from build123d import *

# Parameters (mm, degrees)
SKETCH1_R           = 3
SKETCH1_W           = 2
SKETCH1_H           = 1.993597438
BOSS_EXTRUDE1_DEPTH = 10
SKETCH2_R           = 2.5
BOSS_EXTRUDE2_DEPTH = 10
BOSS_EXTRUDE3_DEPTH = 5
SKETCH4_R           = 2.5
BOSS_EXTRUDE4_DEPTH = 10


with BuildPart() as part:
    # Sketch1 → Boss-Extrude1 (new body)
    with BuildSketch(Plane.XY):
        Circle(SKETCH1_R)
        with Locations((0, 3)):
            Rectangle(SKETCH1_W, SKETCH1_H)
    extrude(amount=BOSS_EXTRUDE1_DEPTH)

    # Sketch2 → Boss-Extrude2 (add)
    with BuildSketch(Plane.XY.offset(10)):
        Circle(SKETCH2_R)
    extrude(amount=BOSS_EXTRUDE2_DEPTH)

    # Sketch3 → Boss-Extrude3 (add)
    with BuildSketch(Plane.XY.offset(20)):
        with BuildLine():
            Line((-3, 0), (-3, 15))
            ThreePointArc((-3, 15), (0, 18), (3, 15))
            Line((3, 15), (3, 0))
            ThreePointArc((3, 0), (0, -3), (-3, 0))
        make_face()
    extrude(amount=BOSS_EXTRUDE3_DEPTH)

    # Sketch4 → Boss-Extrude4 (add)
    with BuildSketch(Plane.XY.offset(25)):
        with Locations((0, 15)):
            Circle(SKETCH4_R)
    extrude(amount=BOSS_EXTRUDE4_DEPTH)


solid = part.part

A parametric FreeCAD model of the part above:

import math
import FreeCAD as App
import Part
import Sketcher
from FreeCAD import Vector

doc = App.newDocument("Part")
body = doc.addObject("PartDesign::Body", "Body")

sketch1 = doc.addObject("Sketcher::SketchObject", "Sketch")
body.addObject(sketch1)
sketch1.AttachmentSupport = (doc.XY_Plane, [""])
sketch1.MapMode = "FlatFace"
sketch1.addGeometry(Part.ArcOfCircle(Part.Circle(Vector(0, 0, 0), Vector(0, 0, 1), 3), math.radians(109), math.radians(431)), False)
sketch1.addGeometry(Part.LineSegment(Vector(1, 2.8, 0), Vector(1, 4, 0)), False)
sketch1.addGeometry(Part.LineSegment(Vector(1, 4, 0), Vector(-1, 4, 0)), False)
sketch1.addGeometry(Part.LineSegment(Vector(-1, 4, 0), Vector(-1, 2.8, 0)), False)
sketch1.addConstraint(Sketcher.Constraint("Coincident", 0, 2, 1, 1))
sketch1.addConstraint(Sketcher.Constraint("Coincident", 1, 2, 2, 1))
sketch1.addConstraint(Sketcher.Constraint("Coincident", 2, 2, 3, 1))
sketch1.addConstraint(Sketcher.Constraint("Coincident", 3, 2, 0, 1))
sketch1.addConstraint(Sketcher.Constraint("Vertical", 1))
sketch1.addConstraint(Sketcher.Constraint("Horizontal", 2))
sketch1.addConstraint(Sketcher.Constraint("Vertical", 3))
sketch1.addConstraint(Sketcher.Constraint("Coincident", 0, 3, -1, 1))
sketch1.addConstraint(Sketcher.Constraint("Horizontal", 0, 2, 3, 2))
sketch1.addConstraint(Sketcher.Constraint("Radius", 0, 3.0))
sketch1.addConstraint(Sketcher.Constraint("DistanceX", 2, 2, 2, 1, 2.0))
sketch1.addConstraint(Sketcher.Constraint("DistanceY", 1, 1, 1, 2, 1.168372))
pad1 = doc.addObject("PartDesign::Pad", "Pad")
body.addObject(pad1)
pad1.Profile = sketch1
pad1.Length = 10

sketch2 = doc.addObject("Sketcher::SketchObject", "Sketch001")
body.addObject(sketch2)
sketch2.AttachmentSupport = (doc.XY_Plane, [""])
sketch2.MapMode = "FlatFace"
sketch2.AttachmentOffset = App.Placement(Vector(0, 0, 10), App.Rotation())
sketch2.addGeometry(Part.Circle(Vector(0, 0, 0), Vector(0, 0, 1), 2.5), False)
sketch2.addConstraint(Sketcher.Constraint("Coincident", 0, 3, -1, 1))
sketch2.addConstraint(Sketcher.Constraint("Diameter", 0, 5.0))
pad2 = doc.addObject("PartDesign::Pad", "Pad001")
body.addObject(pad2)
pad2.Profile = sketch2
pad2.Length = 10

sketch3 = doc.addObject("Sketcher::SketchObject", "Sketch002")
body.addObject(sketch3)
sketch3.AttachmentSupport = (doc.XY_Plane, [""])
sketch3.MapMode = "FlatFace"
sketch3.AttachmentOffset = App.Placement(Vector(0, 0, 20), App.Rotation())
sketch3.addGeometry(Part.LineSegment(Vector(-3, 15, 0), Vector(-3, 0, 0)), False)
sketch3.addGeometry(Part.ArcOfCircle(Part.Circle(Vector(0, 0, 0), Vector(0, 0, 1), 3), math.radians(180), math.radians(360)), False)
sketch3.addGeometry(Part.LineSegment(Vector(3, 0, 0), Vector(3, 15, 0)), False)
sketch3.addGeometry(Part.ArcOfCircle(Part.Circle(Vector(0, 15, 0), Vector(0, 0, 1), 3), math.radians(0), math.radians(180)), False)
sketch3.addConstraint(Sketcher.Constraint("Tangent", 0, 2, 1, 1))
sketch3.addConstraint(Sketcher.Constraint("Tangent", 1, 2, 2, 1))
sketch3.addConstraint(Sketcher.Constraint("Tangent", 2, 2, 3, 1))
sketch3.addConstraint(Sketcher.Constraint("Tangent", 3, 2, 0, 1))
sketch3.addConstraint(Sketcher.Constraint("Vertical", 0))
sketch3.addConstraint(Sketcher.Constraint("Vertical", 2))
sketch3.addConstraint(Sketcher.Constraint("Coincident", 1, 3, -1, 1))
sketch3.addConstraint(Sketcher.Constraint("Radius", 1, 3.0))
sketch3.addConstraint(Sketcher.Constraint("DistanceY", 0, 2, 0, 1, 15.0))
pad3 = doc.addObject("PartDesign::Pad", "Pad002")
body.addObject(pad3)
pad3.Profile = sketch3
pad3.Length = 5

sketch4 = doc.addObject("Sketcher::SketchObject", "Sketch003")
body.addObject(sketch4)
sketch4.AttachmentSupport = (doc.XY_Plane, [""])
sketch4.MapMode = "FlatFace"
sketch4.AttachmentOffset = App.Placement(Vector(0, 0, 25), App.Rotation())
sketch4.addGeometry(Part.Circle(Vector(0, 15, 0), Vector(0, 0, 1), 2.5), False)
sketch4.addConstraint(Sketcher.Constraint("PointOnObject", 0, 3, -2))
sketch4.addConstraint(Sketcher.Constraint("Diameter", 0, 5.0))
sketch4.addConstraint(Sketcher.Constraint("DistanceY", -1, 1, 0, 3, 15.0))
pad4 = doc.addObject("PartDesign::Pad", "Pad003")
body.addObject(pad4)
pad4.Profile = sketch4
pad4.Length = 10

doc.recompute()
